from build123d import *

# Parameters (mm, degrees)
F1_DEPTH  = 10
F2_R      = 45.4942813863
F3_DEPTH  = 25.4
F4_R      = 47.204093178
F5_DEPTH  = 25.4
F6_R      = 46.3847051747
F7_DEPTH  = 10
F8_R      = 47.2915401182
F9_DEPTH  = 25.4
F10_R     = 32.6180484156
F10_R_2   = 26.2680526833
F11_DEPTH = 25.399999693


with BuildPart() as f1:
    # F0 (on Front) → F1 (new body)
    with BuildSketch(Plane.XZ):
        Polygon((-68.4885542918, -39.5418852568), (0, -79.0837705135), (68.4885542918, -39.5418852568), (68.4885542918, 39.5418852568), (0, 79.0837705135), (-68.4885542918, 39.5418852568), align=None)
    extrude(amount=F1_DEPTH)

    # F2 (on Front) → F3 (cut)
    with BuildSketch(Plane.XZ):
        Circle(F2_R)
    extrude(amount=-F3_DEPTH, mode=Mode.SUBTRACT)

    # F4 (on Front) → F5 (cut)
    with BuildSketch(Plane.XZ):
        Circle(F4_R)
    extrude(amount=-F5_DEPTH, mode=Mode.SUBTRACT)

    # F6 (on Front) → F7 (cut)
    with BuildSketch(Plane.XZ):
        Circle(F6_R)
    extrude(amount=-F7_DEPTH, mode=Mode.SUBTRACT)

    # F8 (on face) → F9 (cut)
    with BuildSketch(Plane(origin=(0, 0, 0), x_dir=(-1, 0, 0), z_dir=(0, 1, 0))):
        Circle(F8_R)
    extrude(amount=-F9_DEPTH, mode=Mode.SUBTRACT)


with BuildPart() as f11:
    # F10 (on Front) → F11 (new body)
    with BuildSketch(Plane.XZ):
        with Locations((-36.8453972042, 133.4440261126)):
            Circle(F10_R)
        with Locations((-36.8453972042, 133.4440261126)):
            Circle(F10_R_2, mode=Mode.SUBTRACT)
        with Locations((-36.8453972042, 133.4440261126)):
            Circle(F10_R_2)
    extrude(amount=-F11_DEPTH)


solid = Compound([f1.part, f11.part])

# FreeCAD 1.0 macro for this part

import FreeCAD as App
import Part
import Sketcher
Q = App.Units.Quantity


def add_polygon(sketch, points):
    """Adds a closed chain of lines whose ends are joined by coincident constraints."""
    first, n = sketch.GeometryCount, len(points)
    for a, b in zip(points, points[1:] + points[:1]):
        sketch.addGeometry(Part.LineSegment(App.Vector(*a, 0), App.Vector(*b, 0)), False)
    for i in range(n):
        sketch.addConstraint(Sketcher.Constraint("Coincident", first + i, 2, first + (i + 1) % n, 1))

doc = App.newDocument("Part")
body = doc.addObject("PartDesign::Body", "Body")

# Sketch on XZ plane
sketch1 = doc.addObject("Sketcher::SketchObject", "Sketch")
body.addObject(sketch1)
sketch1.AttachmentSupport = (doc.XZ_Plane, [""])
sketch1.MapMode = "FlatFace"
add_polygon(sketch1, [(-68, -40), (0, -79), (68, -40), (68, 40), (0, 79), (-68, 40)])  # lines 0-5
sketch1.addConstraint([
    Sketcher.Constraint("Vertical", 2),
    Sketcher.Constraint("Vertical", 5),
    Sketcher.Constraint("Symmetric", 0, 2, 3, 2, -1, 1),
    Sketcher.Constraint("Symmetric", 1, 2, 4, 2, -1, 1),
    Sketcher.Constraint("PointOnObject", 0, 2, -2),
    Sketcher.Constraint("Parallel", 0, 3),
    Sketcher.Constraint("Horizontal", 2, 2, 4, 2),
    Sketcher.Constraint("Angle", 0, Q("-30 deg")),
    Sketcher.Constraint("DistanceY", 2, 1, 2, 2, Q("79.083771 mm")),
    Sketcher.Constraint("Distance", 0, Q("79.083771 mm")),
])
pad1 = doc.addObject("PartDesign::Pad", "Pad")
body.addObject(pad1)
pad1.Profile = sketch1
pad1.Length = 10

# Sketch on XZ plane
sketch2 = doc.addObject("Sketcher::SketchObject", "Sketch001")
body.addObject(sketch2)
sketch2.AttachmentSupport = (doc.XZ_Plane, [""])
sketch2.MapMode = "FlatFace"
sketch2.addGeometry(Part.Circle(App.Vector(0, 0, 0), App.Vector(0, 0, 1), 45), False)
sketch2.addConstraint([
    Sketcher.Constraint("Coincident", 0, 3, -1, 1),
    Sketcher.Constraint("Diameter", 0, Q("90.988563 mm")),
])
pocket1 = doc.addObject("PartDesign::Pocket", "Pocket")
body.addObject(pocket1)
pocket1.Profile = sketch2
pocket1.Length = 25.4

# Sketch on XZ plane
sketch3 = doc.addObject("Sketcher::SketchObject", "Sketch002")
body.addObject(sketch3)
sketch3.AttachmentSupport = (doc.XZ_Plane, [""])
sketch3.MapMode = "FlatFace"
sketch3.addGeometry(Part.Circle(App.Vector(0, 0, 0), App.Vector(0, 0, 1), 47), False)
sketch3.addConstraint([
    Sketcher.Constraint("Coincident", 0, 3, -1, 1),
    Sketcher.Constraint("Diameter", 0, Q("94.408186 mm")),
])
pocket2 = doc.addObject("PartDesign::Pocket", "Pocket001")
body.addObject(pocket2)
pocket2.Profile = sketch3
pocket2.Length = 25.4

# Sketch on XZ plane
sketch4 = doc.addObject("Sketcher::SketchObject", "Sketch003")
body.addObject(sketch4)
sketch4.AttachmentSupport = (doc.XZ_Plane, [""])
sketch4.MapMode = "FlatFace"
sketch4.addGeometry(Part.Circle(App.Vector(0, 0, 0), App.Vector(0, 0, 1), 46), False)
sketch4.addConstraint([
    Sketcher.Constraint("Coincident", 0, 3, -1, 1),
    Sketcher.Constraint("Diameter", 0, Q("92.76941 mm")),
])
pocket3 = doc.addObject("PartDesign::Pocket", "Pocket002")
body.addObject(pocket3)
pocket3.Profile = sketch4
pocket3.Length = 10

# Sketch on XZ plane
sketch5 = doc.addObject("Sketcher::SketchObject", "Sketch004")
body.addObject(sketch5)
sketch5.AttachmentSupport = (doc.XZ_Plane, [""])
sketch5.MapMode = "FlatFace"
sketch5.addGeometry(Part.Circle(App.Vector(0, 0, 0), App.Vector(0, 0, 1), 47), False)
sketch5.addConstraint([
    Sketcher.Constraint("Coincident", 0, 3, -1, 1),
    Sketcher.Constraint("Diameter", 0, Q("94.58308 mm")),
])
pocket4 = doc.addObject("PartDesign::Pocket", "Pocket003")
body.addObject(pocket4)
pocket4.Profile = sketch5
pocket4.Length = 25.4
pocket4.Reversed = True
body2 = doc.addObject("PartDesign::Body", "Body001")

# Sketch on XZ plane
sketch6 = doc.addObject("Sketcher::SketchObject", "Sketch005")
body2.addObject(sketch6)
sketch6.AttachmentSupport = (doc.getObject("XZ_Plane001"), [""])
sketch6.MapMode = "FlatFace"
sketch6.addGeometry(Part.Circle(App.Vector(-37, 133, 0), App.Vector(0, 0, 1), 33), False)
sketch6.addConstraint([
    Sketcher.Constraint("Diameter", 0, Q("65.236097 mm")),
    Sketcher.Constraint("DistanceX", 0, 3, -1, 1, Q("36.845397 mm")),
    Sketcher.Constraint("DistanceY", -1, 1, 0, 3, Q("133.444026 mm")),
])
pad2 = doc.addObject("PartDesign::Pad", "Pad001")
body2.addObject(pad2)
pad2.Profile = sketch6
pad2.Length = 25.4
pad2.Reversed = True

doc.recompute()
